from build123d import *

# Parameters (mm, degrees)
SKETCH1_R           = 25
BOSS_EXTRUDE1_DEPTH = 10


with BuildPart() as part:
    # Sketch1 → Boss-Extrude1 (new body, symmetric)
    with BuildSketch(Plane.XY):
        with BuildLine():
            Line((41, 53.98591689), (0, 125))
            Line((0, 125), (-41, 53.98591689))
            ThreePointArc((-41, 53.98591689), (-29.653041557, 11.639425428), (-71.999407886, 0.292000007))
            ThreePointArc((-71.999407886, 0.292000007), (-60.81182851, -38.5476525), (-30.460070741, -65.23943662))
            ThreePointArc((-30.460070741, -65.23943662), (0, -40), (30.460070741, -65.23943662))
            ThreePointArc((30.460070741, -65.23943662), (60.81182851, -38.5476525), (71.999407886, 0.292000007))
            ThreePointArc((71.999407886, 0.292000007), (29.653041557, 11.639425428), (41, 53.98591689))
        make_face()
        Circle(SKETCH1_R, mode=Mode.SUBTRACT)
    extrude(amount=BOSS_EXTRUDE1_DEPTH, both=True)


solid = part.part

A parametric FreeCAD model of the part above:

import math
import FreeCAD as App
import Part
import Sketcher

V = App.Vector
Q = App.Units.Quantity

doc = App.newDocument("Part")
body = doc.addObject("PartDesign::Body", "Body")

sketch1 = doc.addObject("Sketcher::SketchObject", "Sketch")
body.addObject(sketch1)
sketch1.AttachmentSupport = (doc.XY_Plane, [""])
sketch1.MapMode = "FlatFace"
sketch1.addGeometry(Part.LineSegment(V(41, 54, 0), V(0, 125, 0)), False)
sketch1.addGeometry(Part.LineSegment(V(0, 125, 0), V(-41, 54, 0)), False)
sketch1.addGeometry(Part.ArcOfCircle(Part.Circle(V(-56, 27, 0), V(0, 0, 1), 31), math.radians(-120), math.radians(60)), False)
sketch1.addGeometry(Part.ArcOfCircle(Part.Circle(V(0, 0, 0), V(0, 0, 1), 72), math.radians(180), math.radians(245)), False)
sketch1.addGeometry(Part.ArcOfCircle(Part.Circle(V(0, -71, 0), V(0, 0, 1), 31), math.radians(11), math.radians(169)), False)
sketch1.addGeometry(Part.ArcOfCircle(Part.Circle(V(0, 0, 0), V(0, 0, 1), 72), math.radians(-65), math.radians(0)), False)
sketch1.addGeometry(Part.ArcOfCircle(Part.Circle(V(56, 27, 0), V(0, 0, 1), 31), math.radians(120), math.radians(300)), False)
sketch1.addGeometry(Part.Circle(V(0, 0, 0), V(0, 0, 1), 25), False)
sketch1.addConstraint(Sketcher.Constraint("Coincident", 0, 2, 1, 1))
sketch1.addConstraint(Sketcher.Constraint("Coincident", 1, 2, 2, 2))
sketch1.addConstraint(Sketcher.Constraint("Coincident", 2, 1, 3, 1))
sketch1.addConstraint(Sketcher.Constraint("Coincident", 3, 2, 4, 2))
sketch1.addConstraint(Sketcher.Constraint("Coincident", 4, 1, 5, 1))
sketch1.addConstraint(Sketcher.Constraint("Coincident", 5, 2, 6, 2))
sketch1.addConstraint(Sketcher.Constraint("Coincident", 6, 1, 0, 1))
sketch1.addConstraint(Sketcher.Constraint("Coincident", 3, 3, -1, 1))
sketch1.addConstraint(Sketcher.Constraint("Coincident", 5, 3, -1, 1))
sketch1.addConstraint(Sketcher.Constraint("Coincident", 7, 3, -1, 1))
sketch1.addConstraint(Sketcher.Constraint("Equal", 2, 4))
sketch1.addConstraint(Sketcher.Constraint("Equal", 3, 5))
sketch1.addConstraint(Sketcher.Constraint("Equal", 4, 6))
sketch1.addConstraint(Sketcher.Constraint("Symmetric", 2, 3, 6, 3, -2))
sketch1.addConstraint(Sketcher.Constraint("PointOnObject", 4, 3, -2))
sketch1.addConstraint(Sketcher.Constraint("PointOnObject", 0, 2, -2))
sketch1.addConstraint(Sketcher.Constraint("Horizontal", 1, 2, 6, 1))
sketch1.addConstraint(Sketcher.Constraint("Diameter", 7, Q("50 mm")))
sketch1.addConstraint(Sketcher.Constraint("Radius", 2, Q("31 mm")))
sketch1.addConstraint(Sketcher.Constraint("Radius", 3, Q("72 mm")))
sketch1.addConstraint(Sketcher.Constraint("Angle", 0, Q("120 deg")))
sketch1.addConstraint(Sketcher.Constraint("Distance", 0, Q("82 mm")))
sketch1.addConstraint(Sketcher.Constraint("DistanceY", 4, 3, -1, 1, Q("71 mm")))
sketch1.addConstraint(Sketcher.Constraint("DistanceY", -1, 1, 0, 2, Q("125 mm")))
sketch1.addConstraint(Sketcher.Constraint("DistanceX", 2, 3, 6, 3, Q("113 mm")))
pad1 = doc.addObject("PartDesign::Pad", "Pad")
body.addObject(pad1)
pad1.Profile = sketch1
pad1.Length = 20
pad1.Midplane = True

doc.recompute()
